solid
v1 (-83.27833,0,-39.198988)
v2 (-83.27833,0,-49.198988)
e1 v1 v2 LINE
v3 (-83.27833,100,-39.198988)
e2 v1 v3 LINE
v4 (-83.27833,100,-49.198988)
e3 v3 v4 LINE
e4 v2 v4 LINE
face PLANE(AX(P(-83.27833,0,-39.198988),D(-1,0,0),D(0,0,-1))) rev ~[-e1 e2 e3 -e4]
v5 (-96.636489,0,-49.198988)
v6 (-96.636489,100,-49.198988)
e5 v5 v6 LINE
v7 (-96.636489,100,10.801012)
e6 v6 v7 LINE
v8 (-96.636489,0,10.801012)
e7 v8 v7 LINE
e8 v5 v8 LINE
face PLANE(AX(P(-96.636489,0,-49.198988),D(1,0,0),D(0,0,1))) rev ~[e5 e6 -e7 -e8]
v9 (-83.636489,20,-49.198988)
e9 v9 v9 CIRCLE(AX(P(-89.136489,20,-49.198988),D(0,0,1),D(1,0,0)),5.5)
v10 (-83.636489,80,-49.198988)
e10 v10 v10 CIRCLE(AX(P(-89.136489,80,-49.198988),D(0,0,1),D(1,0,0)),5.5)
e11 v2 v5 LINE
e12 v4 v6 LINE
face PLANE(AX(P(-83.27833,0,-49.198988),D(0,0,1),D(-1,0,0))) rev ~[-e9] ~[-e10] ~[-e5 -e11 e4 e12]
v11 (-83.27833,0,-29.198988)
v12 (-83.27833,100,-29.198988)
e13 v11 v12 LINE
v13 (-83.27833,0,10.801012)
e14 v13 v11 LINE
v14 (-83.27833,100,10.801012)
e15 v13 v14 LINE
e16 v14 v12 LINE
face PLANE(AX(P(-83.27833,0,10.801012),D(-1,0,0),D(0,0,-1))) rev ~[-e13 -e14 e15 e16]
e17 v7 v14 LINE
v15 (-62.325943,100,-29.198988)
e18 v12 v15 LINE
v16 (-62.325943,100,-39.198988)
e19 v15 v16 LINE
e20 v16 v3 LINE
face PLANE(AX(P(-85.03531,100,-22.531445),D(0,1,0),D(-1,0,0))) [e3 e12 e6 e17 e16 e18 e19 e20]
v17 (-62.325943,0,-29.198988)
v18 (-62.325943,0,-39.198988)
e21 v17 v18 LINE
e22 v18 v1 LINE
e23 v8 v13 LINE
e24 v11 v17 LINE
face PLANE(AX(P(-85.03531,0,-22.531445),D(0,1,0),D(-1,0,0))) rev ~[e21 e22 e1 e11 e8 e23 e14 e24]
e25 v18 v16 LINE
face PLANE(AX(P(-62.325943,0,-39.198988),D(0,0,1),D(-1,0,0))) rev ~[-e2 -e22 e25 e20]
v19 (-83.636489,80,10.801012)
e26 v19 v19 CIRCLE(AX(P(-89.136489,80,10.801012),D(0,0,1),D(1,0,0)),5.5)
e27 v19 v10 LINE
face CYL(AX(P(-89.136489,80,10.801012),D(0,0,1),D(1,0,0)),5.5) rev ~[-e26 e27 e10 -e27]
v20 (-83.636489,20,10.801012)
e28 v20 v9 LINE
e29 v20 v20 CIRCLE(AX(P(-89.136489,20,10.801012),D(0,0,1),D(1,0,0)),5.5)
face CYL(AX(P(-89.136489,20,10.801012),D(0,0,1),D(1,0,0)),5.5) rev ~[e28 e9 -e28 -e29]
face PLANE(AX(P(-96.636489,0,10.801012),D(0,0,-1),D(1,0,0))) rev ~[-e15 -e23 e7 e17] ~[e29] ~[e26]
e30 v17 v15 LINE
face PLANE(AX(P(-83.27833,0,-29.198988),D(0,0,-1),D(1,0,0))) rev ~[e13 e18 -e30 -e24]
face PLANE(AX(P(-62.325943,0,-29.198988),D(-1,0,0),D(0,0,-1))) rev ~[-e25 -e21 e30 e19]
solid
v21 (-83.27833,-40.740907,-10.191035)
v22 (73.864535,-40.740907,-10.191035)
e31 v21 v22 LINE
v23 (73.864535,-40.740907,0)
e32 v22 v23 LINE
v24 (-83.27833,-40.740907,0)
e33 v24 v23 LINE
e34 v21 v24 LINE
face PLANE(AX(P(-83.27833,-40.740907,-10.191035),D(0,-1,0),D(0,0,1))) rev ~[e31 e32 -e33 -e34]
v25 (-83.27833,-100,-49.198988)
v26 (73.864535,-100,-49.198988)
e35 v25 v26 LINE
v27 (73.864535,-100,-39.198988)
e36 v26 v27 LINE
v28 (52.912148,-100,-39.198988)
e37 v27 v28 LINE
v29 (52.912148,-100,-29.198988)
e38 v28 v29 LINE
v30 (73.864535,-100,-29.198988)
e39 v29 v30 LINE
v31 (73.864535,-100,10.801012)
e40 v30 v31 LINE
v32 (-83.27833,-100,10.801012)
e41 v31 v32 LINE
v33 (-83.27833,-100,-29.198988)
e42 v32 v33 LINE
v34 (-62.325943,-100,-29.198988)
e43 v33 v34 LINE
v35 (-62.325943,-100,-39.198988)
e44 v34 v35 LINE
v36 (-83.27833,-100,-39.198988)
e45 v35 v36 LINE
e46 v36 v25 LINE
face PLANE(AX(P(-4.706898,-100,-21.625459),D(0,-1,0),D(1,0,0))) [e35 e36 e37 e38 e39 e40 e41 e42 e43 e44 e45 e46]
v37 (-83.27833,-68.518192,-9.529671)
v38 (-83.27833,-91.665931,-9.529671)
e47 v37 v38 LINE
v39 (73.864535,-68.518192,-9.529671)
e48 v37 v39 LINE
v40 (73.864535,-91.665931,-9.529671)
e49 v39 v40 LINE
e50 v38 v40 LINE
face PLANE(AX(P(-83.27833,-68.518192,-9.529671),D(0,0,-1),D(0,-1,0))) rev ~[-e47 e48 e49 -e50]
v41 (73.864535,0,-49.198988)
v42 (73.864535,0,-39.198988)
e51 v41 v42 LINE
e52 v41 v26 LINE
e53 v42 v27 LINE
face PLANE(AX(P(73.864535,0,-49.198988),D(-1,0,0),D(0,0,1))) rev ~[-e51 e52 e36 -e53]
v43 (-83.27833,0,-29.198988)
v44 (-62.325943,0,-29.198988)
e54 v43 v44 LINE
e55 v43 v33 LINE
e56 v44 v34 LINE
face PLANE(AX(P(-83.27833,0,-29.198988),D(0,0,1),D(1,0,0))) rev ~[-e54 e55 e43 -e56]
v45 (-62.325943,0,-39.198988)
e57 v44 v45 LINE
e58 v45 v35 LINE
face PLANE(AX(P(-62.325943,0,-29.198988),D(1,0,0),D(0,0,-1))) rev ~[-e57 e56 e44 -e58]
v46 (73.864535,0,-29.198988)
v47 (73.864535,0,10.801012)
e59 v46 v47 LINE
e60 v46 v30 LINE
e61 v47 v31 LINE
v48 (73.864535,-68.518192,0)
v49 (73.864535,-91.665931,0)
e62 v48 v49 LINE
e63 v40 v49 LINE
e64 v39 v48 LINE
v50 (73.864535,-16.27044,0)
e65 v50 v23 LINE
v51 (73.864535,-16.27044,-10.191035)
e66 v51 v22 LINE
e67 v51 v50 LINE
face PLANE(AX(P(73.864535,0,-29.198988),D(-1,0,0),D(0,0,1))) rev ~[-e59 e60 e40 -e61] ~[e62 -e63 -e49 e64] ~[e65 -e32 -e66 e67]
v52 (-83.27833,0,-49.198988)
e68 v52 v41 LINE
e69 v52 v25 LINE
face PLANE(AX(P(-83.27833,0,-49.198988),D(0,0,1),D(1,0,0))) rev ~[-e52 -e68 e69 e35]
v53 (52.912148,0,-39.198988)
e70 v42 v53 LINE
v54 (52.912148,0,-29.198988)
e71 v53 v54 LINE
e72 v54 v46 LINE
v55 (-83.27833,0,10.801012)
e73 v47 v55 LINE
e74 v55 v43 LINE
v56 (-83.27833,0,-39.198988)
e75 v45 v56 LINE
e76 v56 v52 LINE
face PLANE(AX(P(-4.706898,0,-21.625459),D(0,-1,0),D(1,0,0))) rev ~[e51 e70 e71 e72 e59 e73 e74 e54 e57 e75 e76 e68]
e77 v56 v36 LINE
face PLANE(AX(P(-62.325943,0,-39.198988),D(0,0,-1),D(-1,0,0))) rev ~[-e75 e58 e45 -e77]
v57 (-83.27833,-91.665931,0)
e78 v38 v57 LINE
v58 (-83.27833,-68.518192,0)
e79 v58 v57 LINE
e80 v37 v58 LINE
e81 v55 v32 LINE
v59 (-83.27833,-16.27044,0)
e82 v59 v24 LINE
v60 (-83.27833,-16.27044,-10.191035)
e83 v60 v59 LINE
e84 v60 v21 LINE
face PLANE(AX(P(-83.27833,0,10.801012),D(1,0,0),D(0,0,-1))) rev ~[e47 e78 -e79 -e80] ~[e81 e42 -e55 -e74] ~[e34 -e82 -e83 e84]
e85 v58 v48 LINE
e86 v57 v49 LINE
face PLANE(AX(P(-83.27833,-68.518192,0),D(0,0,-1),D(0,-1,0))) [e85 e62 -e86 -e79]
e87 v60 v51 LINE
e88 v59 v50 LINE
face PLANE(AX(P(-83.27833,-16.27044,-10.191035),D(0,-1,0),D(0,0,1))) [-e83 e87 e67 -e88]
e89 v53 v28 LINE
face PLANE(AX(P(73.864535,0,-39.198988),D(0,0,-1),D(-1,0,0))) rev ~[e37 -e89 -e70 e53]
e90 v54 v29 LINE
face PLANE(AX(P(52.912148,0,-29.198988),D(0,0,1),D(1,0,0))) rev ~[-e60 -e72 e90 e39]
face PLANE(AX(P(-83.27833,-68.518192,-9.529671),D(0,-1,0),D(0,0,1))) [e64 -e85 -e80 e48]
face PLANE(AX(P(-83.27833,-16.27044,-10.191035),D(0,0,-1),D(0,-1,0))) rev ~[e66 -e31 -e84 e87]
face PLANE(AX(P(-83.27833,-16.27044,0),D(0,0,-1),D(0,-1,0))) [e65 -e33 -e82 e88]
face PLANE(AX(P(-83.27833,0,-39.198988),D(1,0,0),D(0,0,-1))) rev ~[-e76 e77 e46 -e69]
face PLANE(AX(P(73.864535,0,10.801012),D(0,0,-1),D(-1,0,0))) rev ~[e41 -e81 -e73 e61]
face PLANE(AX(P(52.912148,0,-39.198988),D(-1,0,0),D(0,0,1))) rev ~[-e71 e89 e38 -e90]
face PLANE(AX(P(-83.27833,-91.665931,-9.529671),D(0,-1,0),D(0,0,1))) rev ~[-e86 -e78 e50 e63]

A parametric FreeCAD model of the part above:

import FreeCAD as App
import Part
import Sketcher
from FreeCAD import Vector
Q = App.Units.Quantity


def add_polygon(sketch, points):
    """Adds a closed chain of lines whose ends are joined by coincident constraints."""
    first, n = sketch.GeometryCount, len(points)
    for a, b in zip(points, points[1:] + points[:1]):
        sketch.addGeometry(Part.LineSegment(App.Vector(*a, 0), App.Vector(*b, 0)), False)
    for i in range(n):
        sketch.addConstraint(Sketcher.Constraint("Coincident", first + i, 2, first + (i + 1) % n, 1))

doc = App.newDocument("Part")
body = doc.addObject("PartDesign::Body", "Body")

sketch1 = body.newObject("Sketcher::SketchObject", "Sketch")
sketch1.AttachmentSupport = (doc.getObject("XZ_Plane"), [""])
sketch1.MapMode = "FlatFace"
add_polygon(sketch1, [(73.864535, -29.198988), (73.864535, 10.801012), (-83.27833, 10.801012), (-83.27833, -29.198988), (-62.325943, -29.198988), (-62.325943, -39.198988), (-83.27833, -39.198988), (-83.27833, -49.198988), (73.864535, -49.198988), (73.864535, -39.198988), (52.912148, -39.198988), (52.912148, -29.198988)])
sketch1.addConstraint(Sketcher.Constraint("Vertical", 0))
sketch1.addConstraint(Sketcher.Constraint("Horizontal", 1))
sketch1.addConstraint(Sketcher.Constraint("Vertical", 2))
sketch1.addConstraint(Sketcher.Constraint("Horizontal", 3))
sketch1.addConstraint(Sketcher.Constraint("Vertical", 4))
sketch1.addConstraint(Sketcher.Constraint("Horizontal", 5))
sketch1.addConstraint(Sketcher.Constraint("Vertical", 6))
sketch1.addConstraint(Sketcher.Constraint("Horizontal", 7))
sketch1.addConstraint(Sketcher.Constraint("Vertical", 8))
sketch1.addConstraint(Sketcher.Constraint("Horizontal", 9))
sketch1.addConstraint(Sketcher.Constraint("Vertical", 10))
sketch1.addConstraint(Sketcher.Constraint("Horizontal", 11))
sketch1.addConstraint(Sketcher.Constraint("Horizontal", 5, 2, 8, 2))
sketch1.addConstraint(Sketcher.Constraint("Horizontal", 3, 2, 10, 2))
sketch1.addConstraint(Sketcher.Constraint("Vertical", 2, 2, 5, 2))
sketch1.addConstraint(Sketcher.Constraint("Vertical", 0, 2, 7, 2))
sketch1.addConstraint(Sketcher.Constraint("Equal", 5, 9))
sketch1.addConstraint(Sketcher.Constraint("Equal", 4, 6))
sketch1.addConstraint(Sketcher.Constraint("DistanceY", 0, 1, 0, 2, Q("40 mm")))
sketch1.addConstraint(Sketcher.Constraint("DistanceY", 4, 2, 4, 1, Q("10 mm")))
sketch1.addConstraint(Sketcher.Constraint("DistanceX", 1, 2, 1, 1, Q("157.142865 mm")))
sketch1.addConstraint(Sketcher.Constraint("DistanceX", 3, 1, 3, 2, Q("20.952387 mm")))
sketch1.addConstraint(Sketcher.Constraint("DistanceX", 1, 2, -1, 1, Q("83.27833 mm")))
sketch1.addConstraint(Sketcher.Constraint("DistanceY", 2, 2, -1, 1, Q("29.198988 mm")))
pad1 = body.newObject("PartDesign::Pad", "Pad")
pad1.Profile = sketch1
pad1.Length = 100

sketch2 = body.newObject("Sketcher::SketchObject", "Sketch001")
sketch2.AttachmentSupport = (doc.getObject("YZ_Plane"), [""])
sketch2.MapMode = "FlatFace"
sketch2.AttachmentOffset = App.Placement(Vector(0, 0, -83.27833), App.Rotation())
add_polygon(sketch2, [(-16.27044, 0), (-16.27044, -10.191035), (-40.740907, -10.191035), (-40.740907, 0)])
add_polygon(sketch2, [(-68.518192, 0), (-68.518192, -9.529671), (-91.665931, -9.529671), (-91.665931, 0)])
sketch2.addConstraint(Sketcher.Constraint("Vertical", 0))
sketch2.addConstraint(Sketcher.Constraint("Horizontal", 1))
sketch2.addConstraint(Sketcher.Constraint("Vertical", 2))
sketch2.addConstraint(Sketcher.Constraint("Horizontal", 3))
sketch2.addConstraint(Sketcher.Constraint("Vertical", 4))
sketch2.addConstraint(Sketcher.Constraint("Horizontal", 5))
sketch2.addConstraint(Sketcher.Constraint("Vertical", 6))
sketch2.addConstraint(Sketcher.Constraint("Horizontal", 7))
sketch2.addConstraint(Sketcher.Constraint("PointOnObject", 2, 2, -1))
sketch2.addConstraint(Sketcher.Constraint("PointOnObject", 6, 2, -1))
sketch2.addConstraint(Sketcher.Constraint("DistanceX", 5, 2, 5, 1, Q("23.147739 mm")))
sketch2.addConstraint(Sketcher.Constraint("DistanceY", 4, 2, 4, 1, Q("9.529671 mm")))
sketch2.addConstraint(Sketcher.Constraint("DistanceX", 1, 2, 1, 1, Q("24.470467 mm")))
sketch2.addConstraint(Sketcher.Constraint("DistanceY", 0, 2, 0, 1, Q("10.191035 mm")))
sketch2.addConstraint(Sketcher.Constraint("DistanceX", 0, 2, -1, 1, Q("16.27044 mm")))
sketch2.addConstraint(Sketcher.Constraint("DistanceX", 4, 2, -1, 1, Q("68.518192 mm")))
pocket1 = body.newObject("PartDesign::Pocket", "Pocket")
pocket1.Profile = sketch2
pocket1.Type = "ThroughAll"
pocket1.Reversed = True
body2 = doc.addObject("PartDesign::Body", "Body001")

sketch3 = body2.newObject("Sketcher::SketchObject", "Sketch002")
sketch3.AttachmentSupport = (doc.getObject("XZ_Plane001"), [""])
sketch3.MapMode = "FlatFace"
add_polygon(sketch3, [(-96.636489, 10.801012), (-83.27833, 10.801012), (-83.27833, -29.198988), (-62.325943, -29.198988), (-62.325943, -39.198988), (-83.27833, -39.198988), (-83.27833, -49.198988), (-96.636489, -49.198988)])
sketch3.addConstraint(Sketcher.Constraint("Horizontal", 0))
sketch3.addConstraint(Sketcher.Constraint("Vertical", 1))
sketch3.addConstraint(Sketcher.Constraint("Horizontal", 2))
sketch3.addConstraint(Sketcher.Constraint("Vertical", 3))
sketch3.addConstraint(Sketcher.Constraint("Horizontal", 4))
sketch3.addConstraint(Sketcher.Constraint("Vertical", 5))
sketch3.addConstraint(Sketcher.Constraint("Horizontal", 6))
sketch3.addConstraint(Sketcher.Constraint("Vertical", 7))
sketch3.addConstraint(Sketcher.Constraint("Vertical", 1, 2, 4, 2))
sketch3.addConstraint(Sketcher.Constraint("Equal", 3, 5))
sketch3.addConstraint(Sketcher.Constraint("DistanceY", 1, 2, 1, 1, Q("40 mm")))
sketch3.addConstraint(Sketcher.Constraint("DistanceY", 3, 2, 3, 1, Q("10 mm")))
sketch3.addConstraint(Sketcher.Constraint("DistanceX", 0, 1, 0, 2, Q("13.358159 mm")))
sketch3.addConstraint(Sketcher.Constraint("DistanceX", 2, 1, 2, 2, Q("20.952387 mm")))
sketch3.addConstraint(Sketcher.Constraint("DistanceX", 0, 2, -1, 1, Q("83.27833 mm")))
sketch3.addConstraint(Sketcher.Constraint("DistanceY", 1, 2, -1, 1, Q("29.198988 mm")))
pad2 = body2.newObject("PartDesign::Pad", "Pad001")
pad2.Profile = sketch3
pad2.Length = 100
pad2.Reversed = True

sketch4 = body2.newObject("Sketcher::SketchObject", "Sketch003")
sketch4.AttachmentSupport = (doc.getObject("XY_Plane001"), [""])
sketch4.MapMode = "FlatFace"
sketch4.AttachmentOffset = App.Placement(Vector(0, 0, 10.801012), App.Rotation())
sketch4.addGeometry(Part.Circle(Vector(-89.136489, 80, 0), Vector(0, 0, 1), 5.5), False)
sketch4.addGeometry(Part.Circle(Vector(-89.136489, 20, 0), Vector(0, 0, 1), 5.5), False)
sketch4.addConstraint(Sketcher.Constraint("Equal", 0, 1))
sketch4.addConstraint(Sketcher.Constraint("Vertical", 0, 3, 1, 3))
sketch4.addConstraint(Sketcher.Constraint("Diameter", 0, Q("11 mm")))
sketch4.addConstraint(Sketcher.Constraint("DistanceY", -1, 1, 0, 3, Q("80 mm")))
sketch4.addConstraint(Sketcher.Constraint("DistanceY", -1, 1, 1, 3, Q("20 mm")))
sketch4.addConstraint(Sketcher.Constraint("DistanceX", 0, 3, -1, 1, Q("89.136489 mm")))
pocket2 = body2.newObject("PartDesign::Pocket", "Pocket001")
pocket2.Profile = sketch4
pocket2.Type = "ThroughAll"

doc.recompute()
